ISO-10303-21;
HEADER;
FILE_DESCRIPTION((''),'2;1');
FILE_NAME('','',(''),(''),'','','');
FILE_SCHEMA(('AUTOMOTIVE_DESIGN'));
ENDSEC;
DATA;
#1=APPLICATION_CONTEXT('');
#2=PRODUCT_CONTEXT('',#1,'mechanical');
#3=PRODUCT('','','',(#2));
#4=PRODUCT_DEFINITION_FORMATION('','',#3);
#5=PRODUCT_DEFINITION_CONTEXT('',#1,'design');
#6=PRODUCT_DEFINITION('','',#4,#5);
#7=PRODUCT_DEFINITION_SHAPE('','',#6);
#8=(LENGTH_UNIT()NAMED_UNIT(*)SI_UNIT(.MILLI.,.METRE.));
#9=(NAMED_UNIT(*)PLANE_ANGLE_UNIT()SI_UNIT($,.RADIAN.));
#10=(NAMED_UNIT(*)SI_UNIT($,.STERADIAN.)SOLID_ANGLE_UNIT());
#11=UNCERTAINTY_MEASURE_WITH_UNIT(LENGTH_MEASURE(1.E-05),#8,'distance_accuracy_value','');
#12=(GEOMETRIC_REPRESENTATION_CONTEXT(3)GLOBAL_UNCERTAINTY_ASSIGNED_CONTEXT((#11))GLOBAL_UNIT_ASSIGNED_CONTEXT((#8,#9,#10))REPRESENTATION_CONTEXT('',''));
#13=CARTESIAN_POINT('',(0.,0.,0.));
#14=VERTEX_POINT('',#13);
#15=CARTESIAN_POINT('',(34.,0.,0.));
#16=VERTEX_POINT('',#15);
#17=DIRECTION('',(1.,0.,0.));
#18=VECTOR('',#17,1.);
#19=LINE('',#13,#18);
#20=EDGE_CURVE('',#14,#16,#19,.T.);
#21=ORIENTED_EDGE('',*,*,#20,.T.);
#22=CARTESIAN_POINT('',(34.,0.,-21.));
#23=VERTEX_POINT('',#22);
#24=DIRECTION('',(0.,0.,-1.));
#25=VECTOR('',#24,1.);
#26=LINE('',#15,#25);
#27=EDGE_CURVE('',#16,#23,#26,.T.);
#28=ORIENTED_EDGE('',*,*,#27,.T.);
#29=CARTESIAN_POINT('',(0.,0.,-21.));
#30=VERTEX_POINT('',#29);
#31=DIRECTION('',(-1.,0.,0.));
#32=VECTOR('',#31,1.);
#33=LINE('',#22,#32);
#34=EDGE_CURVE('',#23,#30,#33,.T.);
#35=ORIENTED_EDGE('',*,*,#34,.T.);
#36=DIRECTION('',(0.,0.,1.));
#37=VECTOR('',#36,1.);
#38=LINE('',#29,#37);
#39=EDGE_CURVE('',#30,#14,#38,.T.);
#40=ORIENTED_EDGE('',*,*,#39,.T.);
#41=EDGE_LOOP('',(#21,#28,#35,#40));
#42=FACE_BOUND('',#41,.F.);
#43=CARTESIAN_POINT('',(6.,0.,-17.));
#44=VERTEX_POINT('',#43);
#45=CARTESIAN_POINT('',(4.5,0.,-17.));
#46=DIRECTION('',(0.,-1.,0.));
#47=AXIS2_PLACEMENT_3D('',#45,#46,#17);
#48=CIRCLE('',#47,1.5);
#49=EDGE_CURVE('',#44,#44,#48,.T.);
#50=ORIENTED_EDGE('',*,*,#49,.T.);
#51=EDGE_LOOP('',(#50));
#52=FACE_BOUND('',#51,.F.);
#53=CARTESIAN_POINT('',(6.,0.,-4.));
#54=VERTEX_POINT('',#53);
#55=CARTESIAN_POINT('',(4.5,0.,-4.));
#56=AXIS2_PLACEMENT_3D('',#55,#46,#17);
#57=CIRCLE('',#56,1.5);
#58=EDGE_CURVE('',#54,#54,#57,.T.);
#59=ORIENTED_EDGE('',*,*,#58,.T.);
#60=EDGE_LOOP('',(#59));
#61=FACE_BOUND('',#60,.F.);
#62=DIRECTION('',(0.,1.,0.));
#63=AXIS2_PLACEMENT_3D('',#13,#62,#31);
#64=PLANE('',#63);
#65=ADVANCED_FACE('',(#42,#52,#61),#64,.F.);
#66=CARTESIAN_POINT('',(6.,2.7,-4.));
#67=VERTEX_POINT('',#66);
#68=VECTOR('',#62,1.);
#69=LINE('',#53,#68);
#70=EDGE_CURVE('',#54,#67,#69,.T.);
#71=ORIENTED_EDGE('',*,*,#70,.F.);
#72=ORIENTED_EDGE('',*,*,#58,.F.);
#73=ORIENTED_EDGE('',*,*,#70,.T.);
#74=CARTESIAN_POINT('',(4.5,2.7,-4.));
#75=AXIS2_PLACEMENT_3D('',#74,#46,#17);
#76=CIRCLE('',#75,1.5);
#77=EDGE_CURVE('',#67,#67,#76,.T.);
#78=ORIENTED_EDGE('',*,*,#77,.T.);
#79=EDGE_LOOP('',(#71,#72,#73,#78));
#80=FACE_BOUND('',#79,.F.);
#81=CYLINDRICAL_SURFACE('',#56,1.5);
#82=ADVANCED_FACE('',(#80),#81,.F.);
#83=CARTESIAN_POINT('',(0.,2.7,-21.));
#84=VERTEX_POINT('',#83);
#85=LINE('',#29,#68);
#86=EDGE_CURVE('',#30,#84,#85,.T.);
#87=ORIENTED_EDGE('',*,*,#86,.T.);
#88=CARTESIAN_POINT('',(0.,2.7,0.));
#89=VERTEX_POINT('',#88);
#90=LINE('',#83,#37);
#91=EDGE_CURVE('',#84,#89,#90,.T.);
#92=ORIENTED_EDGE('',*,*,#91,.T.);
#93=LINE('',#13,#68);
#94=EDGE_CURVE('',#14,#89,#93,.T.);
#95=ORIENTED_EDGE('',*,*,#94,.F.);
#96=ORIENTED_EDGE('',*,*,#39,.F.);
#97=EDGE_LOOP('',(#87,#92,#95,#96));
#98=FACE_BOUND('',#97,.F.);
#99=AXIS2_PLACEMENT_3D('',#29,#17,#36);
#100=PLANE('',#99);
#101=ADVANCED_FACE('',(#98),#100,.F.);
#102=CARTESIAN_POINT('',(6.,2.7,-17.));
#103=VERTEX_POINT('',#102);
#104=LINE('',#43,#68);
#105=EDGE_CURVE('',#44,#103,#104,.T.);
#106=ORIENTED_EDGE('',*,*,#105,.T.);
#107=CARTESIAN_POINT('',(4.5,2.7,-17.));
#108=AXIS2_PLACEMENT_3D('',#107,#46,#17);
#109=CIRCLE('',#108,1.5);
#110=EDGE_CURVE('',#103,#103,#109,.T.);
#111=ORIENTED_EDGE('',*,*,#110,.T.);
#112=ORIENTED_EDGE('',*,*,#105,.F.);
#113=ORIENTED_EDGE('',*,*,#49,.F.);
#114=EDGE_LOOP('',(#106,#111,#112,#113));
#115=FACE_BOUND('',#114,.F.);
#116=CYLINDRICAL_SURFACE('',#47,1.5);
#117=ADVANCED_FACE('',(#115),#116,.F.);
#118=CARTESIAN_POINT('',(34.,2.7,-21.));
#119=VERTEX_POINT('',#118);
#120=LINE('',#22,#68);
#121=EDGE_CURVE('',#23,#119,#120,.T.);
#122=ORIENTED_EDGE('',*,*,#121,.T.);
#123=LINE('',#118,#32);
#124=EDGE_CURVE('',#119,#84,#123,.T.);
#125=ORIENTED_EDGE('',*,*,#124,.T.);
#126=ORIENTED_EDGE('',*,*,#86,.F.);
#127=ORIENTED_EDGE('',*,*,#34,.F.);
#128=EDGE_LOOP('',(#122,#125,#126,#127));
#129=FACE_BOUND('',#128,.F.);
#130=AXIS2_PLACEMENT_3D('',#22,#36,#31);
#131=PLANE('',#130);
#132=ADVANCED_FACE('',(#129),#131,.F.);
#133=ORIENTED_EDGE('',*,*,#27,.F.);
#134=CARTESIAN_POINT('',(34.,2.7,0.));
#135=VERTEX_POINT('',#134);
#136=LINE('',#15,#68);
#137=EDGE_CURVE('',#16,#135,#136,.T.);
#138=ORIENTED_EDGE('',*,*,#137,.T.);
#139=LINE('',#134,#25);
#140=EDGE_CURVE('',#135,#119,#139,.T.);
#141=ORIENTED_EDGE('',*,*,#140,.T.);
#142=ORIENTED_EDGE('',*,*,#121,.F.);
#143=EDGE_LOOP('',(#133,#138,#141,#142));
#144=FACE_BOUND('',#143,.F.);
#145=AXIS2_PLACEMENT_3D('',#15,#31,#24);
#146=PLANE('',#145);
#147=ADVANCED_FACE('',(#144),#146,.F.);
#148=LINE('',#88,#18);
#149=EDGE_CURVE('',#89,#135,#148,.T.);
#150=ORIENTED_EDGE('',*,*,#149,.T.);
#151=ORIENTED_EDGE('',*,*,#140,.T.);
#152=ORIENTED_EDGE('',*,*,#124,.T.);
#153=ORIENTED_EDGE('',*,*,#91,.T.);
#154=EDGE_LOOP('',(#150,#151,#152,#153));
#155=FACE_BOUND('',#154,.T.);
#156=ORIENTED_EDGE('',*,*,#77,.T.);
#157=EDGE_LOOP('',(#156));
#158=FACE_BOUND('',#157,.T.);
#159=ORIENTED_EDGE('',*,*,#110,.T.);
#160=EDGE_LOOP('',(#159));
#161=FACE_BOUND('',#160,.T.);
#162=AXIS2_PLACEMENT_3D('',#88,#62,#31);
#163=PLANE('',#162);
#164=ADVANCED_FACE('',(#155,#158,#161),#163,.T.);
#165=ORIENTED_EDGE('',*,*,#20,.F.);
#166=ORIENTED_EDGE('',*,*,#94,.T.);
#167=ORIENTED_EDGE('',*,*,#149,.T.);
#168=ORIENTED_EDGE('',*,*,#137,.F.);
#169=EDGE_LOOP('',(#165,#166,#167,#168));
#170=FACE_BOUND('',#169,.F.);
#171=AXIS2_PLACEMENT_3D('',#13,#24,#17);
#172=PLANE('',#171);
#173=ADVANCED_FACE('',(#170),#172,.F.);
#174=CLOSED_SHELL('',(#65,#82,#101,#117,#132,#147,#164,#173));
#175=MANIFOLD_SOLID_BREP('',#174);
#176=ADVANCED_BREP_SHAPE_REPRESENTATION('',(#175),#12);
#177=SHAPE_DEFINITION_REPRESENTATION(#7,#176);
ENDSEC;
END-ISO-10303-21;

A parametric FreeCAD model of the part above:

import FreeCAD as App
import Part
import Sketcher

V = App.Vector

doc = App.newDocument("Part")
body = doc.addObject("PartDesign::Body", "Body")

# Sketch on XZ plane
sketch1 = body.newObject("Sketcher::SketchObject", "Sketch")
sketch1.AttachmentSupport = (doc.getObject("XZ_Plane"), [""])
sketch1.MapMode = "FlatFace"
sketch1.addGeometry([
    Part.LineSegment(V(0, -21, 0), V(0, 0, 0)),
    Part.LineSegment(V(0, 0, 0), V(34, 0, 0)),
    Part.LineSegment(V(34, 0, 0), V(34, -21, 0)),
    Part.LineSegment(V(34, -21, 0), V(0, -21, 0)),
], False)
sketch1.addConstraint([
    Sketcher.Constraint("Coincident", 0, 2, 1, 1),
    Sketcher.Constraint("Coincident", 1, 2, 2, 1),
    Sketcher.Constraint("Coincident", 2, 2, 3, 1),
    Sketcher.Constraint("Coincident", 3, 2, 0, 1),
    Sketcher.Constraint("Vertical", 0),
    Sketcher.Constraint("Horizontal", 1),
    Sketcher.Constraint("Vertical", 2),
    Sketcher.Constraint("Horizontal", 3),
    Sketcher.Constraint("Coincident", 0, 2, -1, 1),
    Sketcher.Constraint("DistanceX", 1, 1, 1, 2, 34.0),
    Sketcher.Constraint("DistanceY", 0, 1, 0, 2, 21.0),
])
pad1 = body.newObject("PartDesign::Pad", "Pad")
pad1.Profile = sketch1
pad1.Length = 2.7
pad1.Reversed = True

# Sketch on XZ plane
sketch2 = body.newObject("Sketcher::SketchObject", "Sketch001")
sketch2.AttachmentSupport = (doc.getObject("XZ_Plane"), [""])
sketch2.MapMode = "FlatFace"
sketch2.addGeometry([
    Part.Circle(V(4.5, -4, 0), V(0, 0, 1), 1.5),
    Part.Circle(V(4.5, -17, 0), V(0, 0, 1), 1.5),
], False)
sketch2.addConstraint([
    Sketcher.Constraint("Equal", 0, 1),
    Sketcher.Constraint("Vertical", 0, 3, 1, 3),
    Sketcher.Constraint("Diameter", 0, 3.0),
    Sketcher.Constraint("DistanceX", -1, 1, 0, 3, 4.5),
    Sketcher.Constraint("DistanceY", 0, 3, -1, 1, 4.0),
    Sketcher.Constraint("DistanceY", 1, 3, -1, 1, 17.0),
])
pocket1 = body.newObject("PartDesign::Pocket", "Pocket")
pocket1.Profile = sketch2
pocket1.Length = 2.7

doc.recompute()
